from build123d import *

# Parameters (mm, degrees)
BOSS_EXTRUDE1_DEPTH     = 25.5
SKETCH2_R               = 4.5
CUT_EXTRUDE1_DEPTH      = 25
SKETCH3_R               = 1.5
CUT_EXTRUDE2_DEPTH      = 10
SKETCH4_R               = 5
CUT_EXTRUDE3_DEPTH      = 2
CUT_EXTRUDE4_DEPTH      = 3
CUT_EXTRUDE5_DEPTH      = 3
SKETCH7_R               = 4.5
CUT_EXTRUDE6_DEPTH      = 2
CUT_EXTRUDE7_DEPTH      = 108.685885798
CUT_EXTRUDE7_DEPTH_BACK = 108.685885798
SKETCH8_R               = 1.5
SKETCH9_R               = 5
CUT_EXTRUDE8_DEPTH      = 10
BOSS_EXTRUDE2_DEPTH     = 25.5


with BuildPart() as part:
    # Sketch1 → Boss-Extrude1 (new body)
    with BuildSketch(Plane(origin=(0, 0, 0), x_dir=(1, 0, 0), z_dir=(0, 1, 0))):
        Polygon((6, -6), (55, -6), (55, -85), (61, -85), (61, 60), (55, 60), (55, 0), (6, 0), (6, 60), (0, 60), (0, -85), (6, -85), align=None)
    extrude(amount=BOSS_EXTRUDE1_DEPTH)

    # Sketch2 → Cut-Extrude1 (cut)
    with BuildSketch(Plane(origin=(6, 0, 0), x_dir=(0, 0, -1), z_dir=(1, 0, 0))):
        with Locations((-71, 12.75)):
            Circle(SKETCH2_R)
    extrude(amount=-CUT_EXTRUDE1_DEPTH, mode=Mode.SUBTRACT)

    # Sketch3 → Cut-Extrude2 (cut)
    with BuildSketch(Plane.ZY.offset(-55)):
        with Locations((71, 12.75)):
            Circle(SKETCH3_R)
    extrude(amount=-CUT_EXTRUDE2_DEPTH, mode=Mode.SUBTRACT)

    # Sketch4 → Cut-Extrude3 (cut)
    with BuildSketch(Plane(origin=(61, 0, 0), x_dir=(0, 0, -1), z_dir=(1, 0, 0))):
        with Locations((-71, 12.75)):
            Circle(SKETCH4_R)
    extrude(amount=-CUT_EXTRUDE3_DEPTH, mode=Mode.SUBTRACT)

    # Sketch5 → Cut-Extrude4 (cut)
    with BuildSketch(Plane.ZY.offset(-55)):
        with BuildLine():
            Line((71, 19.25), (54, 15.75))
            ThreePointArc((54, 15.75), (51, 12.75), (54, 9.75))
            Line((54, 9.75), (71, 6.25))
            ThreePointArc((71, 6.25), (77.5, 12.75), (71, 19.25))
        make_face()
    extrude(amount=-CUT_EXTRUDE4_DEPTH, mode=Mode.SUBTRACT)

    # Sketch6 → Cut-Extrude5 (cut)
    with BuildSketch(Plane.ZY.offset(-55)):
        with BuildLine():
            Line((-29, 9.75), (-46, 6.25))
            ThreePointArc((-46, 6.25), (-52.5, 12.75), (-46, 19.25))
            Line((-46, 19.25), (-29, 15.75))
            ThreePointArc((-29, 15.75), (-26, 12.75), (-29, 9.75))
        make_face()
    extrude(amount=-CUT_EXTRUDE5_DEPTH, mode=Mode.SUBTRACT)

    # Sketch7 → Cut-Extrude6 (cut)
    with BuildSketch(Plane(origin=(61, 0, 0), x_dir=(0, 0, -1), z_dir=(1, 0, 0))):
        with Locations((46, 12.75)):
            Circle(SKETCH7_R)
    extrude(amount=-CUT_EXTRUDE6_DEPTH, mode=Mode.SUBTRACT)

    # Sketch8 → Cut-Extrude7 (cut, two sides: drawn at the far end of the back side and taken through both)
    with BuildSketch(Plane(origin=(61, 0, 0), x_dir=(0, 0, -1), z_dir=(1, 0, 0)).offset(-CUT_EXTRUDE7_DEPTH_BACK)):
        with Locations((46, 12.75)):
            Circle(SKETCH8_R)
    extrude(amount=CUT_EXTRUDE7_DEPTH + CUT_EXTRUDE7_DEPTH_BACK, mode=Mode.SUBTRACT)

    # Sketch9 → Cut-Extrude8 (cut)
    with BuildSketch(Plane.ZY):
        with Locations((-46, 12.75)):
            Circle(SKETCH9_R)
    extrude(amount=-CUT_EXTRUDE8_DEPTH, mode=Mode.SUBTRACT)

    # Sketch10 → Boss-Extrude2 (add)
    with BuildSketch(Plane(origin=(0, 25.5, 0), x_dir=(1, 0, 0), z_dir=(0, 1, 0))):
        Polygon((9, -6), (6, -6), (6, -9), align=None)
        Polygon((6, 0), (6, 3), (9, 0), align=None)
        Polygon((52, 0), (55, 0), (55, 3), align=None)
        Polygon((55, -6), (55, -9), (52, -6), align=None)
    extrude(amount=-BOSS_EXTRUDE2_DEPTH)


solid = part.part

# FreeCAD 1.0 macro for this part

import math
import FreeCAD as App
import Part
import Sketcher

V = App.Vector
Q = App.Units.Quantity

doc = App.newDocument("Part")
body = doc.addObject("PartDesign::Body", "Body")

sketch1 = body.newObject("Sketcher::SketchObject", "Sketch")
sketch1.AttachmentSupport = (doc.getObject("XZ_Plane"), [""])
sketch1.MapMode = "FlatFace"
sketch1.addGeometry([
    Part.LineSegment(V(6, 6, 0), V(55, 6, 0)),
    Part.LineSegment(V(55, 6, 0), V(55, 85, 0)),
    Part.LineSegment(V(55, 85, 0), V(61, 85, 0)),
    Part.LineSegment(V(61, 85, 0), V(61, -60, 0)),
    Part.LineSegment(V(61, -60, 0), V(55, -60, 0)),
    Part.LineSegment(V(55, -60, 0), V(55, 0, 0)),
    Part.LineSegment(V(55, 0, 0), V(6, 0, 0)),
    Part.LineSegment(V(6, 0, 0), V(6, -60, 0)),
    Part.LineSegment(V(6, -60, 0), V(0, -60, 0)),
    Part.LineSegment(V(0, -60, 0), V(0, 85, 0)),
    Part.LineSegment(V(0, 85, 0), V(6, 85, 0)),
    Part.LineSegment(V(6, 85, 0), V(6, 6, 0)),
], False)
sketch1.addConstraint([
    Sketcher.Constraint("Coincident", 0, 2, 1, 1),
    Sketcher.Constraint("Coincident", 1, 2, 2, 1),
    Sketcher.Constraint("Coincident", 2, 2, 3, 1),
    Sketcher.Constraint("Coincident", 3, 2, 4, 1),
    Sketcher.Constraint("Coincident", 4, 2, 5, 1),
    Sketcher.Constraint("Coincident", 5, 2, 6, 1),
    Sketcher.Constraint("Coincident", 6, 2, 7, 1),
    Sketcher.Constraint("Coincident", 7, 2, 8, 1),
    Sketcher.Constraint("Coincident", 8, 2, 9, 1),
    Sketcher.Constraint("Coincident", 9, 2, 10, 1),
    Sketcher.Constraint("Coincident", 10, 2, 11, 1),
    Sketcher.Constraint("Coincident", 11, 2, 0, 1),
    Sketcher.Constraint("Horizontal", 0),
    Sketcher.Constraint("Vertical", 1),
    Sketcher.Constraint("Horizontal", 2),
    Sketcher.Constraint("Vertical", 3),
    Sketcher.Constraint("Horizontal", 4),
    Sketcher.Constraint("Vertical", 5),
    Sketcher.Constraint("Horizontal", 6),
    Sketcher.Constraint("Vertical", 7),
    Sketcher.Constraint("Horizontal", 8),
    Sketcher.Constraint("Vertical", 9),
    Sketcher.Constraint("Horizontal", 10),
    Sketcher.Constraint("Vertical", 11),
    Sketcher.Constraint("PointOnObject", 5, 2, -1),
    Sketcher.Constraint("PointOnObject", 8, 2, -2),
    Sketcher.Constraint("Horizontal", 4, 2, 7, 2),
    Sketcher.Constraint("Horizontal", 2, 2, 9, 2),
    Sketcher.Constraint("Vertical", 1, 2, 4, 2),
    Sketcher.Constraint("Vertical", 7, 2, 10, 2),
    Sketcher.Constraint("Equal", 4, 8),
    Sketcher.Constraint("DistanceX", 0, 1, 0, 2, Q("49 mm")),
    Sketcher.Constraint("DistanceX", 2, 1, 2, 2, Q("6 mm")),
    Sketcher.Constraint("DistanceY", 1, 1, 1, 2, Q("79 mm")),
    Sketcher.Constraint("DistanceY", 3, 2, 3, 1, Q("145 mm")),
    Sketcher.Constraint("DistanceY", 5, 1, 5, 2, Q("60 mm")),
])
pad1 = body.newObject("PartDesign::Pad", "Pad")
pad1.Profile = sketch1
pad1.Length = 25.5
pad1.Reversed = True

sketch2 = body.newObject("Sketcher::SketchObject", "Sketch001")
sketch2.AttachmentSupport = (doc.getObject("YZ_Plane"), [""])
sketch2.MapMode = "FlatFace"
sketch2.AttachmentOffset = App.Placement(V(0, 0, 6), App.Rotation())
sketch2.addGeometry(Part.Circle(V(12.75, 71, 0), V(0, 0, 1), 4.5), False)
sketch2.addConstraint([
    Sketcher.Constraint("Diameter", 0, Q("9 mm")),
    Sketcher.Constraint("DistanceY", -1, 1, 0, 3, Q("71 mm")),
    Sketcher.Constraint("DistanceX", -1, 1, 0, 3, Q("12.75 mm")),
])
pocket1 = body.newObject("PartDesign::Pocket", "Pocket")
pocket1.Profile = sketch2
pocket1.Length = 25

sketch3 = body.newObject("Sketcher::SketchObject", "Sketch002")
sketch3.AttachmentSupport = (doc.getObject("YZ_Plane"), [""])
sketch3.MapMode = "FlatFace"
sketch3.AttachmentOffset = App.Placement(V(0, 0, 55), App.Rotation())
sketch3.addGeometry(Part.Circle(V(12.75, 71, 0), V(0, 0, 1), 1.5), False)
sketch3.addConstraint([
    Sketcher.Constraint("Diameter", 0, Q("3 mm")),
    Sketcher.Constraint("DistanceY", -1, 1, 0, 3, Q("71 mm")),
    Sketcher.Constraint("DistanceX", -1, 1, 0, 3, Q("12.75 mm")),
])
pocket2 = body.newObject("PartDesign::Pocket", "Pocket001")
pocket2.Profile = sketch3
pocket2.Length = 10
pocket2.Reversed = True

sketch4 = body.newObject("Sketcher::SketchObject", "Sketch003")
sketch4.AttachmentSupport = (doc.getObject("YZ_Plane"), [""])
sketch4.MapMode = "FlatFace"
sketch4.AttachmentOffset = App.Placement(V(0, 0, 61), App.Rotation())
sketch4.addGeometry(Part.Circle(V(12.75, 71, 0), V(0, 0, 1), 5), False)
sketch4.addConstraint([
    Sketcher.Constraint("Diameter", 0, Q("10 mm")),
    Sketcher.Constraint("DistanceY", -1, 1, 0, 3, Q("71 mm")),
    Sketcher.Constraint("DistanceX", -1, 1, 0, 3, Q("12.75 mm")),
])
pocket3 = body.newObject("PartDesign::Pocket", "Pocket002")
pocket3.Profile = sketch4
pocket3.Length = 2

sketch5 = body.newObject("Sketcher::SketchObject", "Sketch004")
sketch5.AttachmentSupport = (doc.getObject("YZ_Plane"), [""])
sketch5.MapMode = "FlatFace"
sketch5.AttachmentOffset = App.Placement(V(0, 0, 55), App.Rotation())
sketch5.addGeometry([
    Part.LineSegment(V(19.25, 71, 0), V(15.75, 54, 0)),
    Part.ArcOfCircle(Part.Circle(V(12.75, 54, 0), V(0, 0, 1), 3), math.radians(180), math.radians(360)),
    Part.LineSegment(V(9.75, 54, 0), V(6.25, 71, 0)),
    Part.ArcOfCircle(Part.Circle(V(12.75, 71, 0), V(0, 0, 1), 6.5), math.radians(0), math.radians(180)),
], False)
sketch5.addConstraint([
    Sketcher.Constraint("Coincident", 0, 2, 1, 2),
    Sketcher.Constraint("Coincident", 1, 1, 2, 1),
    Sketcher.Constraint("Coincident", 2, 2, 3, 2),
    Sketcher.Constraint("Coincident", 3, 1, 0, 1),
    Sketcher.Constraint("Horizontal", 1, 3, 0, 2),
    Sketcher.Constraint("Horizontal", 0, 2, 1, 1),
    Sketcher.Constraint("Horizontal", 3, 3, 2, 2),
    Sketcher.Constraint("Horizontal", 2, 2, 3, 1),
    Sketcher.Constraint("Vertical", 1, 3, 3, 3),
    Sketcher.Constraint("Radius", 1, Q("3 mm")),
    Sketcher.Constraint("Radius", 3, Q("6.5 mm")),
    Sketcher.Constraint("DistanceY", -1, 1, 1, 3, Q("54 mm")),
    Sketcher.Constraint("DistanceY", -1, 1, 3, 3, Q("71 mm")),
    Sketcher.Constraint("DistanceX", -1, 1, 1, 3, Q("12.75 mm")),
])
pocket4 = body.newObject("PartDesign::Pocket", "Pocket003")
pocket4.Profile = sketch5
pocket4.Length = 3
pocket4.Reversed = True

sketch6 = body.newObject("Sketcher::SketchObject", "Sketch005")
sketch6.AttachmentSupport = (doc.getObject("YZ_Plane"), [""])
sketch6.MapMode = "FlatFace"
sketch6.AttachmentOffset = App.Placement(V(0, 0, 55), App.Rotation())
sketch6.addGeometry([
    Part.LineSegment(V(6.25, -46, 0), V(9.75, -29, 0)),
    Part.ArcOfCircle(Part.Circle(V(12.75, -29, 0), V(0, 0, 1), 3), math.radians(0), math.radians(180)),
    Part.LineSegment(V(15.75, -29, 0), V(19.25, -46, 0)),
    Part.ArcOfCircle(Part.Circle(V(12.75, -46, 0), V(0, 0, 1), 6.5), math.radians(180), math.radians(360)),
], False)
sketch6.addConstraint([
    Sketcher.Constraint("Coincident", 0, 2, 1, 2),
    Sketcher.Constraint("Coincident", 1, 1, 2, 1),
    Sketcher.Constraint("Coincident", 2, 2, 3, 2),
    Sketcher.Constraint("Coincident", 3, 1, 0, 1),
    Sketcher.Constraint("Horizontal", 1, 3, 0, 2),
    Sketcher.Constraint("Horizontal", 0, 2, 1, 1),
    Sketcher.Constraint("Horizontal", 3, 3, 2, 2),
    Sketcher.Constraint("Horizontal", 2, 2, 3, 1),
    Sketcher.Constraint("Vertical", 1, 3, 3, 3),
    Sketcher.Constraint("Radius", 1, Q("3 mm")),
    Sketcher.Constraint("Radius", 3, Q("6.5 mm")),
    Sketcher.Constraint("DistanceY", 1, 3, -1, 1, Q("29 mm")),
    Sketcher.Constraint("DistanceY", 3, 3, -1, 1, Q("46 mm")),
    Sketcher.Constraint("DistanceX", -1, 1, 1, 3, Q("12.75 mm")),
])
pocket5 = body.newObject("PartDesign::Pocket", "Pocket004")
pocket5.Profile = sketch6
pocket5.Length = 3
pocket5.Reversed = True

sketch7 = body.newObject("Sketcher::SketchObject", "Sketch006")
sketch7.AttachmentSupport = (doc.getObject("YZ_Plane"), [""])
sketch7.MapMode = "FlatFace"
sketch7.AttachmentOffset = App.Placement(V(0, 0, 61), App.Rotation())
sketch7.addGeometry(Part.Circle(V(12.75, -46, 0), V(0, 0, 1), 4.5), False)
sketch7.addConstraint([
    Sketcher.Constraint("Diameter", 0, Q("9 mm")),
    Sketcher.Constraint("DistanceY", 0, 3, -1, 1, Q("46 mm")),
    Sketcher.Constraint("DistanceX", -1, 1, 0, 3, Q("12.75 mm")),
])
pocket6 = body.newObject("PartDesign::Pocket", "Pocket005")
pocket6.Profile = sketch7
pocket6.Length = 2

sketch8 = body.newObject("Sketcher::SketchObject", "Sketch007")
sketch8.AttachmentSupport = (doc.getObject("YZ_Plane"), [""])
sketch8.MapMode = "FlatFace"
sketch8.AttachmentOffset = App.Placement(V(0, 0, 61), App.Rotation())
sketch8.addGeometry(Part.Circle(V(12.75, -46, 0), V(0, 0, 1), 1.5), False)
sketch8.addConstraint([
    Sketcher.Constraint("Diameter", 0, Q("3 mm")),
    Sketcher.Constraint("DistanceY", 0, 3, -1, 1, Q("46 mm")),
    Sketcher.Constraint("DistanceX", -1, 1, 0, 3, Q("12.75 mm")),
])
pocket7 = body.newObject("PartDesign::Pocket", "Pocket006")
pocket7.Profile = sketch8
pocket7.Type = "ThroughAll"
pocket7.Midplane = True

sketch9 = body.newObject("Sketcher::SketchObject", "Sketch008")
sketch9.AttachmentSupport = (doc.getObject("YZ_Plane"), [""])
sketch9.MapMode = "FlatFace"
sketch9.addGeometry(Part.Circle(V(12.75, -46, 0), V(0, 0, 1), 5), False)
sketch9.addConstraint([
    Sketcher.Constraint("Diameter", 0, Q("10 mm")),
    Sketcher.Constraint("DistanceY", 0, 3, -1, 1, Q("46 mm")),
    Sketcher.Constraint("DistanceX", -1, 1, 0, 3, Q("12.75 mm")),
])
pocket8 = body.newObject("PartDesign::Pocket", "Pocket007")
pocket8.Profile = sketch9
pocket8.Length = 10
pocket8.Reversed = True

sketch10 = body.newObject("Sketcher::SketchObject", "Sketch009")
sketch10.AttachmentSupport = (doc.getObject("XZ_Plane"), [""])
sketch10.MapMode = "FlatFace"
sketch10.AttachmentOffset = App.Placement(V(0, 0, -25.5), App.Rotation())
sketch10.addGeometry([
    Part.LineSegment(V(9, 6, 0), V(6, 6, 0)),
    Part.LineSegment(V(6, 6, 0), V(6, 9, 0)),
    Part.LineSegment(V(6, 9, 0), V(9, 6, 0)),
    Part.LineSegment(V(6, -3, 0), V(6, 0, 0)),
    Part.LineSegment(V(6, 0, 0), V(9, 0, 0)),
    Part.LineSegment(V(9, 0, 0), V(6, -3, 0)),
    Part.LineSegment(V(52, 0, 0), V(55, 0, 0)),
    Part.LineSegment(V(55, 0, 0), V(55, -3, 0)),
    Part.LineSegment(V(55, -3, 0), V(52, 0, 0)),
    Part.LineSegment(V(55, 9, 0), V(55, 6, 0)),
    Part.LineSegment(V(55, 6, 0), V(52, 6, 0)),
    Part.LineSegment(V(52, 6, 0), V(55, 9, 0)),
], False)
sketch10.addConstraint([
    Sketcher.Constraint("Coincident", 0, 2, 1, 1),
    Sketcher.Constraint("Coincident", 1, 2, 2, 1),
    Sketcher.Constraint("Coincident", 2, 2, 0, 1),
    Sketcher.Constraint("Coincident", 3, 2, 4, 1),
    Sketcher.Constraint("Coincident", 4, 2, 5, 1),
    Sketcher.Constraint("Coincident", 5, 2, 3, 1),
    Sketcher.Constraint("Coincident", 6, 2, 7, 1),
    Sketcher.Constraint("Coincident", 7, 2, 8, 1),
    Sketcher.Constraint("Coincident", 8, 2, 6, 1),
    Sketcher.Constraint("Coincident", 9, 2, 10, 1),
    Sketcher.Constraint("Coincident", 10, 2, 11, 1),
    Sketcher.Constraint("Coincident", 11, 2, 9, 1),
    Sketcher.Constraint("Horizontal", 0),
    Sketcher.Constraint("Vertical", 1),
    Sketcher.Constraint("Vertical", 3),
    Sketcher.Constraint("Horizontal", 4),
    Sketcher.Constraint("Horizontal", 6),
    Sketcher.Constraint("Vertical", 7),
    Sketcher.Constraint("Vertical", 9),
    Sketcher.Constraint("Horizontal", 10),
    Sketcher.Constraint("PointOnObject", 3, 2, -1),
    Sketcher.Constraint("PointOnObject", 6, 2, -1),
    Sketcher.Constraint("Perpendicular", 2, 5),
    Sketcher.Constraint("Perpendicular", 5, 8),
    Sketcher.Constraint("Perpendicular", 8, 11),
    Sketcher.Constraint("Horizontal", 5, 2, 7, 2),
    Sketcher.Constraint("Horizontal", 2, 2, 9, 2),
    Sketcher.Constraint("Horizontal", 1, 2, 11, 2),
    Sketcher.Constraint("Vertical", 1, 2, 3, 2),
    Sketcher.Constraint("Vertical", 2, 2, 4, 2),
    Sketcher.Constraint("Vertical", 7, 2, 9, 2),
    Sketcher.Constraint("Vertical", 8, 2, 10, 2),
    Sketcher.Constraint("DistanceX", 0, 2, 0, 1, Q("3 mm")),
    Sketcher.Constraint("DistanceX", -1, 1, 0, 2, Q("6 mm")),
    Sketcher.Constraint("DistanceY", -1, 1, 0, 2, Q("6 mm")),
    Sketcher.Constraint("DistanceX", -1, 1, 6, 2, Q("55 mm")),
])
pad2 = body.newObject("PartDesign::Pad", "Pad001")
pad2.Profile = sketch10
pad2.Length = 25.5

doc.recompute()
